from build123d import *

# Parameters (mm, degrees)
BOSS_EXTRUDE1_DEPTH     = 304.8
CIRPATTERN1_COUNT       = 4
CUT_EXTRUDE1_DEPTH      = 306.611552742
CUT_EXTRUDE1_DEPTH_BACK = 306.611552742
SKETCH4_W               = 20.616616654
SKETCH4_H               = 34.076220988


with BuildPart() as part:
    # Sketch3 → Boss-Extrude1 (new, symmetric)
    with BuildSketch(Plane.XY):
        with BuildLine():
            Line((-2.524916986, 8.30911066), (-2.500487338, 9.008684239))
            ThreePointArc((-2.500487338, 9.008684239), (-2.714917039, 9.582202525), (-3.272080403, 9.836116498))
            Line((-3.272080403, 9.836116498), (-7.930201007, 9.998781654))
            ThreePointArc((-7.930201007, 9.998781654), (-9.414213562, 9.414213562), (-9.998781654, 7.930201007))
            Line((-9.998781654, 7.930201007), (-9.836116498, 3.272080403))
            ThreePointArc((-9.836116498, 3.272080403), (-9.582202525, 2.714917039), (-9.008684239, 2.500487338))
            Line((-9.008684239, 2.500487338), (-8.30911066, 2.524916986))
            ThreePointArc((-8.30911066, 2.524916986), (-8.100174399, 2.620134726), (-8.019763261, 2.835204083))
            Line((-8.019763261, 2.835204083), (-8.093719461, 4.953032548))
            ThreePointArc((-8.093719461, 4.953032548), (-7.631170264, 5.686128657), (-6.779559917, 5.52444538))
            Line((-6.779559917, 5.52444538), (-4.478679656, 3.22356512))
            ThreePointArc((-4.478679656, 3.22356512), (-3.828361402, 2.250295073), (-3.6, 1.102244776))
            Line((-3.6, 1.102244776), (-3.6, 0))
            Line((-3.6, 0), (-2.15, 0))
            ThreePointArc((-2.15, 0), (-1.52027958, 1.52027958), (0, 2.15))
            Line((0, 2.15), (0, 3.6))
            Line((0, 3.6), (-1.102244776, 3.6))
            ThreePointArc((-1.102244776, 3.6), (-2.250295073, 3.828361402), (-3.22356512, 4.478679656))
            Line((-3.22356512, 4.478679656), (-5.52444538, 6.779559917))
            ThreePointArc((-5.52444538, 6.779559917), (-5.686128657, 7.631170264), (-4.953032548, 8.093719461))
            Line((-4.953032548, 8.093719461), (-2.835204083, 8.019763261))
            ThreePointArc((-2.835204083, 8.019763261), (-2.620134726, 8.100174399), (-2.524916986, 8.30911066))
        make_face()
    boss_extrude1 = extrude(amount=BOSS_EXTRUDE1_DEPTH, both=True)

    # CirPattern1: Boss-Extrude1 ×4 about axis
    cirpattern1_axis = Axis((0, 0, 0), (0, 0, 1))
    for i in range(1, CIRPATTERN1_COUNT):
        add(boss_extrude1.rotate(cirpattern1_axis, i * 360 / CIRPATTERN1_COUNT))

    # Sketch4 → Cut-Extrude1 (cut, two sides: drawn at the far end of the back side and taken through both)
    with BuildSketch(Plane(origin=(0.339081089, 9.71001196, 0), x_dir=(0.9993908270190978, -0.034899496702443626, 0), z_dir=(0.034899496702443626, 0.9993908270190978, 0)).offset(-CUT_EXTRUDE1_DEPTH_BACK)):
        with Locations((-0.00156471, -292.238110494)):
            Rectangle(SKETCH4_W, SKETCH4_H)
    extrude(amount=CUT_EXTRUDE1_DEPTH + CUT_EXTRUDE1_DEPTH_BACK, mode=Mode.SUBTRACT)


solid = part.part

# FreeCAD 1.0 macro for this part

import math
import FreeCAD as App
import Part
import Sketcher
from FreeCAD import Vector
Q = App.Units.Quantity

doc = App.newDocument("Part")
body = doc.addObject("PartDesign::Body", "Body")

# Sketch on XY plane
sketch1 = body.newObject("Sketcher::SketchObject", "Sketch")
sketch1.AttachmentSupport = (doc.getObject("XY_Plane"), [""])
sketch1.MapMode = "FlatFace"
sketch1.addGeometry(Part.LineSegment(Vector(-2.52, 8.31, 0), Vector(-2.5, 9.01, 0)), False)
sketch1.addGeometry(Part.ArcOfCircle(Part.Circle(Vector(-3.3, 9.04, 0), Vector(0, 0, 1), 0.8), math.radians(-2), math.radians(88)), False)
sketch1.addGeometry(Part.LineSegment(Vector(-3.27, 9.84, 0), Vector(-7.93, 10, 0)), False)
sketch1.addGeometry(Part.ArcOfCircle(Part.Circle(Vector(-8, 8, 0), Vector(0, 0, 1), 2), math.radians(88), math.radians(182)), False)
sketch1.addGeometry(Part.LineSegment(Vector(-10, 7.93, 0), Vector(-9.84, 3.27, 0)), False)
sketch1.addGeometry(Part.ArcOfCircle(Part.Circle(Vector(-9.04, 3.3, 0), Vector(0, 0, 1), 0.8), math.radians(-178), math.radians(-88)), False)
sketch1.addGeometry(Part.LineSegment(Vector(-9.01, 2.5, 0), Vector(-8.31, 2.52, 0)), False)
sketch1.addGeometry(Part.ArcOfCircle(Part.Circle(Vector(-8.32, 2.82, 0), Vector(0, 0, 1), 0.3), math.radians(-88), math.radians(2)), False)
sketch1.addGeometry(Part.LineSegment(Vector(-8.02, 2.84, 0), Vector(-8.09, 4.95, 0)), False)
sketch1.addGeometry(Part.ArcOfCircle(Part.Circle(Vector(-7.32, 4.98, 0), Vector(0, 0, 1), 0.77), math.radians(45), math.radians(182)), False)
sketch1.addGeometry(Part.LineSegment(Vector(-6.78, 5.52, 0), Vector(-4.48, 3.22, 0)), False)
sketch1.addGeometry(Part.ArcOfCircle(Part.Circle(Vector(-6.6, 1.1, 0), Vector(0, 0, 1), 3), math.radians(0), math.radians(45)), False)
sketch1.addGeometry(Part.LineSegment(Vector(-3.6, 1.1, 0), Vector(-3.6, 0, 0)), False)
sketch1.addGeometry(Part.LineSegment(Vector(-3.6, 0, 0), Vector(-2.15, 0, 0)), False)
sketch1.addGeometry(Part.ArcOfCircle(Part.Circle(Vector(0, 0, 0), Vector(0, 0, 1), 2.15), math.radians(90), math.radians(180)), False)
sketch1.addGeometry(Part.LineSegment(Vector(0, 2.15, 0), Vector(0, 3.6, 0)), False)
sketch1.addGeometry(Part.LineSegment(Vector(0, 3.6, 0), Vector(-1.1, 3.6, 0)), False)
sketch1.addGeometry(Part.ArcOfCircle(Part.Circle(Vector(-1.1, 6.6, 0), Vector(0, 0, 1), 3), math.radians(-135), math.radians(-90)), False)
sketch1.addGeometry(Part.LineSegment(Vector(-3.22, 4.48, 0), Vector(-5.52, 6.78, 0)), False)
sketch1.addGeometry(Part.ArcOfCircle(Part.Circle(Vector(-4.98, 7.32, 0), Vector(0, 0, 1), 0.77), math.radians(88), math.radians(225)), False)
sketch1.addGeometry(Part.LineSegment(Vector(-4.95, 8.09, 0), Vector(-2.84, 8.02, 0)), False)
sketch1.addGeometry(Part.ArcOfCircle(Part.Circle(Vector(-2.82, 8.32, 0), Vector(0, 0, 1), 0.3), math.radians(-92), math.radians(-2)), False)
sketch1.addConstraint(Sketcher.Constraint("Tangent", 0, 2, 1, 1))
sketch1.addConstraint(Sketcher.Constraint("Tangent", 1, 2, 2, 1))
sketch1.addConstraint(Sketcher.Constraint("Tangent", 2, 2, 3, 1))
sketch1.addConstraint(Sketcher.Constraint("Tangent", 3, 2, 4, 1))
sketch1.addConstraint(Sketcher.Constraint("Tangent", 4, 2, 5, 1))
sketch1.addConstraint(Sketcher.Constraint("Tangent", 5, 2, 6, 1))
sketch1.addConstraint(Sketcher.Constraint("Tangent", 6, 2, 7, 1))
sketch1.addConstraint(Sketcher.Constraint("Tangent", 7, 2, 8, 1))
sketch1.addConstraint(Sketcher.Constraint("Tangent", 8, 2, 9, 2))
sketch1.addConstraint(Sketcher.Constraint("Tangent", 9, 1, 10, 1))
sketch1.addConstraint(Sketcher.Constraint("Tangent", 10, 2, 11, 2))
sketch1.addConstraint(Sketcher.Constraint("Tangent", 11, 1, 12, 1))
sketch1.addConstraint(Sketcher.Constraint("Coincident", 12, 2, 13, 1))
sketch1.addConstraint(Sketcher.Constraint("Coincident", 13, 2, 14, 2))
sketch1.addConstraint(Sketcher.Constraint("Coincident", 14, 1, 15, 1))
sketch1.addConstraint(Sketcher.Constraint("Coincident", 15, 2, 16, 1))
sketch1.addConstraint(Sketcher.Constraint("Tangent", 16, 2, 17, 2))
sketch1.addConstraint(Sketcher.Constraint("Tangent", 17, 1, 18, 1))
sketch1.addConstraint(Sketcher.Constraint("Tangent", 18, 2, 19, 2))
sketch1.addConstraint(Sketcher.Constraint("Tangent", 19, 1, 20, 1))
sketch1.addConstraint(Sketcher.Constraint("Tangent", 20, 2, 21, 1))
sketch1.addConstraint(Sketcher.Constraint("Tangent", 21, 2, 0, 1))
sketch1.addConstraint(Sketcher.Constraint("Vertical", 12))
sketch1.addConstraint(Sketcher.Constraint("Horizontal", 13))
sketch1.addConstraint(Sketcher.Constraint("Vertical", 15))
sketch1.addConstraint(Sketcher.Constraint("Horizontal", 16))
sketch1.addConstraint(Sketcher.Constraint("Coincident", 14, 3, -1, 1))
sketch1.addConstraint(Sketcher.Constraint("Equal", 1, 5))
sketch1.addConstraint(Sketcher.Constraint("Equal", 11, 17))
sketch1.addConstraint(Sketcher.Constraint("Equal", 9, 19))
sketch1.addConstraint(Sketcher.Constraint("Equal", 7, 21))
sketch1.addConstraint(Sketcher.Constraint("PointOnObject", 12, 2, -1))
sketch1.addConstraint(Sketcher.Constraint("PointOnObject", 14, 1, -2))
sketch1.addConstraint(Sketcher.Constraint("Perpendicular", 0, 2))
sketch1.addConstraint(Sketcher.Constraint("Perpendicular", 4, 6))
sketch1.addConstraint(Sketcher.Constraint("Perpendicular", 6, 8))
sketch1.addConstraint(Sketcher.Constraint("Parallel", 10, 18))
sketch1.addConstraint(Sketcher.Constraint("Parallel", 2, 20))
sketch1.addConstraint(Sketcher.Constraint("Equal", 16, 12))
sketch1.addConstraint(Sketcher.Constraint("Equal", 13, 15))
sketch1.addConstraint(Sketcher.Constraint("Equal", 2, 4))
sketch1.addConstraint(Sketcher.Constraint("Equal", 0, 6))
sketch1.addConstraint(Sketcher.Constraint("Equal", 10, 18))
sketch1.addConstraint(Sketcher.Constraint("Equal", 8, 20))
sketch1.addConstraint(Sketcher.Constraint("Radius", 3, Q("2 mm")))
sketch1.addConstraint(Sketcher.Constraint("Radius", 11, Q("3 mm")))
sketch1.addConstraint(Sketcher.Constraint("Radius", 1, Q("0.8 mm")))
sketch1.addConstraint(Sketcher.Constraint("Radius", 7, Q("0.3 mm")))
sketch1.addConstraint(Sketcher.Constraint("Angle", 0, Q("88 deg")))
sketch1.addConstraint(Sketcher.Constraint("Angle", 4, Q("-88 deg")))
sketch1.addConstraint(Sketcher.Constraint("Radius", 14, Q("2.15 mm")))
sketch1.addConstraint(Sketcher.Constraint("DistanceX", 3, 3, -1, 1, Q("8 mm")))
sketch1.addConstraint(Sketcher.Constraint("Distance", 0, Q("0.7 mm")))
sketch1.addConstraint(Sketcher.Constraint("DistanceX", 13, 1, 13, 2, Q("1.45 mm")))
sketch1.addConstraint(Sketcher.Constraint("DistanceX", 1, 3, -1, 1, Q("3.3 mm")))
sketch1.addConstraint(Sketcher.Constraint("Radius", 9, Q("0.770092 mm")))
sketch1.addConstraint(Sketcher.Constraint("DistanceY", 7, 3, 8, 2, Q("2.128298 mm")))
pad1 = body.newObject("PartDesign::Pad", "Pad")
pad1.Profile = sketch1
pad1.Length = 609.6
pad1.Midplane = True
doc.recompute()

polarpattern = body.newObject("PartDesign::PolarPattern", "PolarPattern")
polarpattern.Originals = [pad1]
polarpattern.Axis = (doc.getObject("Z_Axis"), [""])
polarpattern.Angle = 360
polarpattern.Occurrences = 4
body.Tip = polarpattern

# Sketch on an angled plane
sketch2 = body.newObject("Sketcher::SketchObject", "Sketch001")
sketch2.Placement = App.Placement(Vector(0.339081, 9.710012, 0), App.Rotation(Vector(0.999390827, -0.034899497, 0), Vector(0, 0, -1), Vector(0.034899497, 0.999390827, 0), "ZXY"))
sketch2.addGeometry(Part.LineSegment(Vector(-10, -275, 0), Vector(-10, -309, 0)), False)
sketch2.addGeometry(Part.LineSegment(Vector(-10, -309, 0), Vector(10, -309, 0)), False)
sketch2.addGeometry(Part.LineSegment(Vector(10, -309, 0), Vector(10, -275, 0)), False)
sketch2.addGeometry(Part.LineSegment(Vector(10, -275, 0), Vector(-10, -275, 0)), False)
sketch2.addConstraint(Sketcher.Constraint("Coincident", 0, 2, 1, 1))
sketch2.addConstraint(Sketcher.Constraint("Coincident", 1, 2, 2, 1))
sketch2.addConstraint(Sketcher.Constraint("Coincident", 2, 2, 3, 1))
sketch2.addConstraint(Sketcher.Constraint("Coincident", 3, 2, 0, 1))
sketch2.addConstraint(Sketcher.Constraint("Vertical", 0))
sketch2.addConstraint(Sketcher.Constraint("Horizontal", 1))
sketch2.addConstraint(Sketcher.Constraint("Vertical", 2))
sketch2.addConstraint(Sketcher.Constraint("Horizontal", 3))
sketch2.addConstraint(Sketcher.Constraint("DistanceY", 2, 2, -1, 1, Q("275.2 mm")))
sketch2.addConstraint(Sketcher.Constraint("DistanceY", 0, 2, 0, 1, Q("34.076221 mm")))
sketch2.addConstraint(Sketcher.Constraint("DistanceX", 1, 1, 1, 2, Q("20.616617 mm")))
sketch2.addConstraint(Sketcher.Constraint("DistanceX", 0, 2, -1, 1, Q("10.309873 mm")))
pocket1 = body.newObject("PartDesign::Pocket", "Pocket")
pocket1.Profile = sketch2
pocket1.Type = "ThroughAll"
pocket1.Midplane = True

doc.recompute()
